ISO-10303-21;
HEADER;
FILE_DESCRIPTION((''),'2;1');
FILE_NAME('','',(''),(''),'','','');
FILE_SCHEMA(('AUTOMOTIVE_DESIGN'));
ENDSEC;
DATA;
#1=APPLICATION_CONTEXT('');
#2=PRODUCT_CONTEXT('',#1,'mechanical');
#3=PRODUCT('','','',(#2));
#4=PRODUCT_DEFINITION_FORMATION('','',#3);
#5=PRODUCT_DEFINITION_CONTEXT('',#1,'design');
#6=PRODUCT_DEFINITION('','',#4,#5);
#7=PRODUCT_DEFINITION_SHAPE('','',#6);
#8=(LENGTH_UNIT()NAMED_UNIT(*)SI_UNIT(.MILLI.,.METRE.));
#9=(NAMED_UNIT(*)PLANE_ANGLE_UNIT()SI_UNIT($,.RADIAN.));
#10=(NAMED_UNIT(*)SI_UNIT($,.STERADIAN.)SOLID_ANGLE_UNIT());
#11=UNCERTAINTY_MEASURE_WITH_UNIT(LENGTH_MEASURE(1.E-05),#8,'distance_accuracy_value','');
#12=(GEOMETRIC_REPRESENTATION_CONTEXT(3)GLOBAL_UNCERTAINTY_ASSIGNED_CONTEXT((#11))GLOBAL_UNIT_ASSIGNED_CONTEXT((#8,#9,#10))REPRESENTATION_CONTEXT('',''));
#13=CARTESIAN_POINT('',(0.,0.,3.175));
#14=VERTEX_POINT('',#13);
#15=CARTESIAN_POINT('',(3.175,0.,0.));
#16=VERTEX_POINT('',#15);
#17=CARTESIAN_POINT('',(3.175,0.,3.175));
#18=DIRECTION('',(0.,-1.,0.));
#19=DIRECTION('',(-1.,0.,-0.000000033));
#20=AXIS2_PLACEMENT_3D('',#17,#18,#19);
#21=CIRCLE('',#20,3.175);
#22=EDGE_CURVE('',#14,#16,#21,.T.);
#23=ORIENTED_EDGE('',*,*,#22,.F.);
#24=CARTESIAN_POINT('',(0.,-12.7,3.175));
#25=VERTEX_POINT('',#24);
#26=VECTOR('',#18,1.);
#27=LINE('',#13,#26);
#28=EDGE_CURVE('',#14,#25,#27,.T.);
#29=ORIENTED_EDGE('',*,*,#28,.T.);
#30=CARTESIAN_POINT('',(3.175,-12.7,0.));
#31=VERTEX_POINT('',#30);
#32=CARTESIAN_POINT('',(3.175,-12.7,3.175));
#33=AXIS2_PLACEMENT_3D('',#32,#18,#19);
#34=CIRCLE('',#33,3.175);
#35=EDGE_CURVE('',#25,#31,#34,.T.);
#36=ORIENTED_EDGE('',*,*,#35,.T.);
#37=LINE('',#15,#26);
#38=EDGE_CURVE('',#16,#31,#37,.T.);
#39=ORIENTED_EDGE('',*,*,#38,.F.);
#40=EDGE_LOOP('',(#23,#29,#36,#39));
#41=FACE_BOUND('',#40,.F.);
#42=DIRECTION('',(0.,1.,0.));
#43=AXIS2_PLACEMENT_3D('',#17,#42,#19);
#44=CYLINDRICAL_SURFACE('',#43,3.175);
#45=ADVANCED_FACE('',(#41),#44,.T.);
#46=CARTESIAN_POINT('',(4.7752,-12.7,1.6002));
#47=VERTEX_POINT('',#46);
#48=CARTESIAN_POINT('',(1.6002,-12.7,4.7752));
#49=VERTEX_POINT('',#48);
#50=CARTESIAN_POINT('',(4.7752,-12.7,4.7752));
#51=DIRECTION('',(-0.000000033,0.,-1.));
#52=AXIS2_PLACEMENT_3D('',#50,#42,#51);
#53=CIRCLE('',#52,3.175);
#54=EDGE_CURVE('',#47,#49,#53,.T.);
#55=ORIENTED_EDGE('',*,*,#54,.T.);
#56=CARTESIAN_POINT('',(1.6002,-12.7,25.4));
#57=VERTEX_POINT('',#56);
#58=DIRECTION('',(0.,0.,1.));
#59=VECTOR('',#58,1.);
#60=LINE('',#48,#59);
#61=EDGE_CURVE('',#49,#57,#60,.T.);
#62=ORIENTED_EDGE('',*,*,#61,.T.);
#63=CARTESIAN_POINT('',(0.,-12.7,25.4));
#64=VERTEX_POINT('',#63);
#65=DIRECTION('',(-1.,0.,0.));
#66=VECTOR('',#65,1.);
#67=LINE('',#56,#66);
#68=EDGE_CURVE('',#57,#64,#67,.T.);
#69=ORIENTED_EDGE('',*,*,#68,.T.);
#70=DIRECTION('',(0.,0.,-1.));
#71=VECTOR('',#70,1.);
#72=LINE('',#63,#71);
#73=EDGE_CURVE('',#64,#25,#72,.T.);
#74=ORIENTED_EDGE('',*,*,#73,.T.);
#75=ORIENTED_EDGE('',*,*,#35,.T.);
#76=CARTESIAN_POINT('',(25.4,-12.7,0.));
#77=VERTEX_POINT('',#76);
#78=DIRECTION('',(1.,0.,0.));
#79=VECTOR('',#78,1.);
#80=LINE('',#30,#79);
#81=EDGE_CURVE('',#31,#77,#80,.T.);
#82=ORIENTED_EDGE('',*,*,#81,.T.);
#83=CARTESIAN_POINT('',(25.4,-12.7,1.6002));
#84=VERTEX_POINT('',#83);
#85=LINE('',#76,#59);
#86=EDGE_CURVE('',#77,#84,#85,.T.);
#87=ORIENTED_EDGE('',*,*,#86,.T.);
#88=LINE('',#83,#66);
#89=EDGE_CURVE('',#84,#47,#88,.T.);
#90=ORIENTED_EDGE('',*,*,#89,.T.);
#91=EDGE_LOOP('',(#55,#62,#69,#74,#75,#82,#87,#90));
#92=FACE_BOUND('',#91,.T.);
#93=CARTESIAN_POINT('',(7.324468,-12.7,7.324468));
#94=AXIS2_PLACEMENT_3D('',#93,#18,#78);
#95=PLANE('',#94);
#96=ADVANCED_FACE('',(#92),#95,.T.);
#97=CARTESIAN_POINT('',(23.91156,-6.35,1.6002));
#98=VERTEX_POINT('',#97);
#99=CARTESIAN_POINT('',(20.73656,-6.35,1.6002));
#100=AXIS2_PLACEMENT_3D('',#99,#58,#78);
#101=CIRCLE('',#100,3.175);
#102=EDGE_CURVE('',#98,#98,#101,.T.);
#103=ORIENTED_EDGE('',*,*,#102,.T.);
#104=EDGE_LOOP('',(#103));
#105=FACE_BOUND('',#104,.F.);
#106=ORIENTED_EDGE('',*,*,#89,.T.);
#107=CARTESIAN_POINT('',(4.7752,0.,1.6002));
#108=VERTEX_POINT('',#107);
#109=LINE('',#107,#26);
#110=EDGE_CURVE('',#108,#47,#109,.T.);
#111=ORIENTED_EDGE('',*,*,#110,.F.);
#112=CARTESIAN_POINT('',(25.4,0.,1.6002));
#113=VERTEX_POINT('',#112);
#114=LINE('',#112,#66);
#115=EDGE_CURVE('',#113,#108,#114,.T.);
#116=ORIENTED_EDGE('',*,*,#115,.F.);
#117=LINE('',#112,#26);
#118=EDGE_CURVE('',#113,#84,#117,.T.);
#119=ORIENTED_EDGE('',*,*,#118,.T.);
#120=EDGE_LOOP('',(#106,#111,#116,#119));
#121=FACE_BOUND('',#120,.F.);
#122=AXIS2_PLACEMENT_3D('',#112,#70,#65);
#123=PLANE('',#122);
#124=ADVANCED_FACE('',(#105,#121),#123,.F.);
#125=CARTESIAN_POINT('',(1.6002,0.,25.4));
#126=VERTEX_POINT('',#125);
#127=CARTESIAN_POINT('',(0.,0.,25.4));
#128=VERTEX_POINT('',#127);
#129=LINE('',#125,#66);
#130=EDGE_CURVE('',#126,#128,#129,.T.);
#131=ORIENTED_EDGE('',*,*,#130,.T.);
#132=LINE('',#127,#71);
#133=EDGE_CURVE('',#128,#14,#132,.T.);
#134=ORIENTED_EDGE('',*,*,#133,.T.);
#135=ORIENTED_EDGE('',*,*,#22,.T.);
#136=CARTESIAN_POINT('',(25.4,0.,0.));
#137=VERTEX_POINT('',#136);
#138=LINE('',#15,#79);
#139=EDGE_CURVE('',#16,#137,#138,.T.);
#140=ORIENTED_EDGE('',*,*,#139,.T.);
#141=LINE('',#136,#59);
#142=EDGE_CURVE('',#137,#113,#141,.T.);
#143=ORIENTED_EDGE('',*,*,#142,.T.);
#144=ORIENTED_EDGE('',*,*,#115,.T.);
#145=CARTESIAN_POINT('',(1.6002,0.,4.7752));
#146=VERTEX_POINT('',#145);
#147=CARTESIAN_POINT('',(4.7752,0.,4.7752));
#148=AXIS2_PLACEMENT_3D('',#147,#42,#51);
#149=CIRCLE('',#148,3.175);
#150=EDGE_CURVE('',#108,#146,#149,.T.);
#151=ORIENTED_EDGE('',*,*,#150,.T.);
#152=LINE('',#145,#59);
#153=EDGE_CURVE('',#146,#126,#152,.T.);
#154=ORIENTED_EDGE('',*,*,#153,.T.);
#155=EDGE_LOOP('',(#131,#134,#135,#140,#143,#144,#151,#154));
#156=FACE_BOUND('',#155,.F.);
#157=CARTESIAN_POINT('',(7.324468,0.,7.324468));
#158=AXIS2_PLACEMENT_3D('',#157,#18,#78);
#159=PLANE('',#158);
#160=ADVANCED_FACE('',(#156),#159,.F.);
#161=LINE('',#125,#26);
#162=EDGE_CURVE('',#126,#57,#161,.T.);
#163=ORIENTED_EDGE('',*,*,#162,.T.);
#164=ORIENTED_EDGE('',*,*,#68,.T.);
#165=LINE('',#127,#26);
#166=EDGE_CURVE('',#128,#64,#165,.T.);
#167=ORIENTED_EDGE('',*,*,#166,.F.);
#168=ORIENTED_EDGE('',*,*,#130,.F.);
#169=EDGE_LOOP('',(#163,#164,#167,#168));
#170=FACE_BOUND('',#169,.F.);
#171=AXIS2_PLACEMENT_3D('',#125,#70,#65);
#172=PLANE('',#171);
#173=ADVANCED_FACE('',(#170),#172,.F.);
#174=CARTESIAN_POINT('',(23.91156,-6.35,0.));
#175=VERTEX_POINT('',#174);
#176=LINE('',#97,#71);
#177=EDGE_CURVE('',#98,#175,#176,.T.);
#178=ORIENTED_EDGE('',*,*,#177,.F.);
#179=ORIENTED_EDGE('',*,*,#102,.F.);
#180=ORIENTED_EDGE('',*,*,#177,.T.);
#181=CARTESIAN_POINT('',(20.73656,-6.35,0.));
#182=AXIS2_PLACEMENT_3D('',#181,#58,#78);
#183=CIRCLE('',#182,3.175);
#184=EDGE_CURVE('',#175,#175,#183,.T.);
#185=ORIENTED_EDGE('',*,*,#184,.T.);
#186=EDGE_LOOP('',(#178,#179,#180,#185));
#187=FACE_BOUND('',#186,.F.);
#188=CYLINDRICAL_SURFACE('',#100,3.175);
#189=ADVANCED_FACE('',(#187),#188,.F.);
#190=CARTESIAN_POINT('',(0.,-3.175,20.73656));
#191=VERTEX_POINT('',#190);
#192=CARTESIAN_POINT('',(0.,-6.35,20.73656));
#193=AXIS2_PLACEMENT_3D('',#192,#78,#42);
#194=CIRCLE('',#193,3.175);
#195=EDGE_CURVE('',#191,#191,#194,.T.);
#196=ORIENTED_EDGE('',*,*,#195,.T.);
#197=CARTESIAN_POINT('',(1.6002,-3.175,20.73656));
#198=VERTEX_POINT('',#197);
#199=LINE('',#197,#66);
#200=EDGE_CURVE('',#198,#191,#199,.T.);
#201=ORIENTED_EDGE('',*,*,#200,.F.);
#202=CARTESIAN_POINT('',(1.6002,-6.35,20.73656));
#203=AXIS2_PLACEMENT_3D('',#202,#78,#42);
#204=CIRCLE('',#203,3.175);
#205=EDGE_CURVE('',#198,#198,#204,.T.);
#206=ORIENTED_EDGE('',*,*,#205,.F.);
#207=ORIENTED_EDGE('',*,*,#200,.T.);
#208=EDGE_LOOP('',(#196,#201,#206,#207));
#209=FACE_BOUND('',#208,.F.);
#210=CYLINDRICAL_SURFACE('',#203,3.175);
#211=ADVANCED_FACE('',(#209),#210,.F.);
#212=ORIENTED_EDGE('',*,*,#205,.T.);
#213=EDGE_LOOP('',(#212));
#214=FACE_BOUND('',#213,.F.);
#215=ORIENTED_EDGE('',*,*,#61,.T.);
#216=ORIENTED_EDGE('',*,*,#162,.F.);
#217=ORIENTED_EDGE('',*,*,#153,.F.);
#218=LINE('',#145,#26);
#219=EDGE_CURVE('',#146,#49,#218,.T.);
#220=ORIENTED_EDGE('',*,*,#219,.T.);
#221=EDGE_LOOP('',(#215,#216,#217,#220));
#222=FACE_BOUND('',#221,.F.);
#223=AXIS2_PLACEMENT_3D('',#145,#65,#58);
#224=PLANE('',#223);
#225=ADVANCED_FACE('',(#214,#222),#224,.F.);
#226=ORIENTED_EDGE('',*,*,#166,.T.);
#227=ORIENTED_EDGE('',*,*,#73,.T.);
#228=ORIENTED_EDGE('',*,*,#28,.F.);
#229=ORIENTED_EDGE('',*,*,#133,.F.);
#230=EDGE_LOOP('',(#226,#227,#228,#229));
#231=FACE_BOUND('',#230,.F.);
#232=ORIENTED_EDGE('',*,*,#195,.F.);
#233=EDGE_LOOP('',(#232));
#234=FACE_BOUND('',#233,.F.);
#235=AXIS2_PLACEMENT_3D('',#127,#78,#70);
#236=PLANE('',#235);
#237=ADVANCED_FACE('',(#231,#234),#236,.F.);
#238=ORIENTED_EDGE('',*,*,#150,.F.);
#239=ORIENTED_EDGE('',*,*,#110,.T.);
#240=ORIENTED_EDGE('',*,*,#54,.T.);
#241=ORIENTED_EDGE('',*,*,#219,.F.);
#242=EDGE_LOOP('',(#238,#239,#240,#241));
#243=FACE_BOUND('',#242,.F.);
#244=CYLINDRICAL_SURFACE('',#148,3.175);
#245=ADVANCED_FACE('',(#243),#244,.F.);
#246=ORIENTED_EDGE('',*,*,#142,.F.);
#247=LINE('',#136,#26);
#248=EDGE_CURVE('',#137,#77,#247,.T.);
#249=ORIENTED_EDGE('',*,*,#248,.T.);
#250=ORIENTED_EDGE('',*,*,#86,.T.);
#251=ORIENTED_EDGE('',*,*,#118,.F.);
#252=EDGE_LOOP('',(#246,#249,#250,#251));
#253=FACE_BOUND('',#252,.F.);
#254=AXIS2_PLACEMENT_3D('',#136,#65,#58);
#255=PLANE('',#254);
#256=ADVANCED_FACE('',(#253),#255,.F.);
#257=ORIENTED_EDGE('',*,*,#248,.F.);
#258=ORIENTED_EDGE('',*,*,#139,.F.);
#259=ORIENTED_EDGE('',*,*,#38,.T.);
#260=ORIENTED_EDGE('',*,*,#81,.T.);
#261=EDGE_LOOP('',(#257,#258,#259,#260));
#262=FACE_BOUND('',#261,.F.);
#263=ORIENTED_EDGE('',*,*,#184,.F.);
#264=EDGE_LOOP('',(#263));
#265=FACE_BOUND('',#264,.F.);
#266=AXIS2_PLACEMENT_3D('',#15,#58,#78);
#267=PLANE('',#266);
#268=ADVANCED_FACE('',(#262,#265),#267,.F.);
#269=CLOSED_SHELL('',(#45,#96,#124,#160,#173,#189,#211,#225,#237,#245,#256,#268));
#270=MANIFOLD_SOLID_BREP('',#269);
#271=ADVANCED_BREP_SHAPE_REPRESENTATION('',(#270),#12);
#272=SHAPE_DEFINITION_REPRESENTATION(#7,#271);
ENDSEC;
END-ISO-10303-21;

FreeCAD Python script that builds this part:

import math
import FreeCAD as App
import Part
import Sketcher

V = App.Vector
Q = App.Units.Quantity

doc = App.newDocument("Part")
body = doc.addObject("PartDesign::Body", "Body")

# Sketch on XZ plane
sketch1 = body.newObject("Sketcher::SketchObject", "Sketch")
sketch1.AttachmentSupport = (doc.getObject("XZ_Plane"), [""])
sketch1.MapMode = "FlatFace"
sketch1.addGeometry([
    Part.LineSegment(V(0, 25.4, 0), V(0, 3.175, 0)),  # 0
    Part.ArcOfCircle(Part.Circle(V(3.175, 3.175, 0), V(0, 0, 1), 3.175), math.radians(-179.999998), math.radians(-90.000002)),  # 1
    Part.LineSegment(V(3.175, 0, 0), V(25.4, 0, 0)),  # 2
    Part.LineSegment(V(25.4, 0, 0), V(25.4, 1.6002, 0)),  # 3
    Part.LineSegment(V(25.4, 1.6002, 0), V(4.7752, 1.6002, 0)),  # 4
    Part.ArcOfCircle(Part.Circle(V(4.7752, 4.7752, 0), V(0, 0, 1), 3.175), math.radians(-179.999998), math.radians(-90.000002)),  # 5
    Part.LineSegment(V(1.6002, 4.7752, 0), V(1.6002, 25.4, 0)),  # 6
    Part.LineSegment(V(1.6002, 25.4, 0), V(0, 25.4, 0)),  # 7
], False)
sketch1.addConstraint([
    Sketcher.Constraint("Tangent", 0, 2, 1, 1),
    Sketcher.Constraint("Tangent", 1, 2, 2, 1),
    Sketcher.Constraint("Coincident", 2, 2, 3, 1),
    Sketcher.Constraint("Coincident", 3, 2, 4, 1),
    Sketcher.Constraint("Tangent", 4, 2, 5, 2),
    Sketcher.Constraint("Tangent", 5, 1, 6, 1),
    Sketcher.Constraint("Coincident", 6, 2, 7, 1),
    Sketcher.Constraint("Coincident", 7, 2, 0, 1),
    Sketcher.Constraint("Vertical", 0),
    Sketcher.Constraint("Horizontal", 2),
    Sketcher.Constraint("Vertical", 3),
    Sketcher.Constraint("Horizontal", 4),
    Sketcher.Constraint("Vertical", 6),
    Sketcher.Constraint("Horizontal", 7),
    Sketcher.Constraint("Equal", 1, 5),
    Sketcher.Constraint("PointOnObject", 0, 2, -2),
    Sketcher.Constraint("PointOnObject", 1, 2, -1),
    Sketcher.Constraint("Equal", 2, 0),
    Sketcher.Constraint("Equal", 7, 3),
    Sketcher.Constraint("DistanceX", -1, 1, 2, 2, Q("1 in")),
    Sketcher.Constraint("Radius", 1, Q("0.125 in")),
    Sketcher.Constraint("DistanceX", 4, 2, 4, 1, Q("0.812 in")),
])
pad1 = body.newObject("PartDesign::Pad", "Pad")
pad1.Profile = sketch1
pad1.Length = Q("0.5 in")

# Sketch on XY plane
sketch2 = body.newObject("Sketcher::SketchObject", "Sketch001")
sketch2.AttachmentSupport = (doc.getObject("XY_Plane"), [""])
sketch2.MapMode = "FlatFace"
sketch2.AttachmentOffset = App.Placement(V(0, 0, 0.063 * 25.4), App.Rotation())
sketch2.addGeometry(Part.Circle(V(20.73656, -6.35, 0), V(0, 0, 1), 3.175), False)
sketch2.addConstraint([
    Sketcher.Constraint("Diameter", 0, Q("0.25 in")),
    Sketcher.Constraint("DistanceY", 0, 3, -1, 1, Q("0.25 in")),
    Sketcher.Constraint("DistanceX", -1, 1, 0, 3, Q("0.8164 in")),
])
pocket1 = body.newObject("PartDesign::Pocket", "Pocket")
pocket1.Profile = sketch2
pocket1.Length = Q("1 in")

# Sketch on YZ plane
sketch3 = body.newObject("Sketcher::SketchObject", "Sketch002")
sketch3.AttachmentSupport = (doc.getObject("YZ_Plane"), [""])
sketch3.MapMode = "FlatFace"
sketch3.AttachmentOffset = App.Placement(V(0, 0, 0.063 * 25.4), App.Rotation())
sketch3.addGeometry(Part.Circle(V(-6.35, 20.73656, 0), V(0, 0, 1), 3.175), False)
sketch3.addConstraint([
    Sketcher.Constraint("Diameter", 0, Q("0.25 in")),
    Sketcher.Constraint("DistanceX", 0, 3, -1, 1, Q("0.25 in")),
    Sketcher.Constraint("DistanceY", -1, 1, 0, 3, Q("0.8164 in")),
])
pocket2 = body.newObject("PartDesign::Pocket", "Pocket001")
pocket2.Profile = sketch3
pocket2.Length = Q("1 in")

doc.recompute()
